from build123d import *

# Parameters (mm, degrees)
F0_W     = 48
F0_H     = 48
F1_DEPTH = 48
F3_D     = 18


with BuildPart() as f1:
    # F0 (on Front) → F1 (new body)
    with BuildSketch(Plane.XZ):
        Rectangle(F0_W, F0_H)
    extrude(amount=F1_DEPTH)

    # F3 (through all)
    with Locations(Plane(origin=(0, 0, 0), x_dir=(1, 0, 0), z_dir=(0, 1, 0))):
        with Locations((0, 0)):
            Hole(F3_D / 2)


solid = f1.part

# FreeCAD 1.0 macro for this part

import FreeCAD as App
import Part
import Sketcher
from FreeCAD import Vector

doc = App.newDocument("Part")
params = doc.addObject("Spreadsheet::Sheet", "Params")
for row, (alias, value) in enumerate([
    ("sketch1_width", "48 mm"),
    ("pad1_length", "48 mm"),
    ("sketch2_diameter", "18 mm"),
    ("hole_diameter", "18 mm"),
], start=1):
    params.set(f"A{row}", alias)
    params.set(f"B{row}", "=" + value)
    params.setAlias(f"B{row}", alias)

body = doc.addObject("PartDesign::Body", "Body")

# Sketch on XZ plane
sketch1 = body.newObject("Sketcher::SketchObject", "Sketch")
sketch1.AttachmentSupport = (doc.getObject("XZ_Plane"), [""])
sketch1.MapMode = "FlatFace"
sketch1.addGeometry([
    Part.LineSegment(Vector(-24, 24, 0), Vector(-24, -24, 0)),
    Part.LineSegment(Vector(-24, -24, 0), Vector(24, -24, 0)),
    Part.LineSegment(Vector(24, -24, 0), Vector(24, 24, 0)),
    Part.LineSegment(Vector(24, 24, 0), Vector(-24, 24, 0)),
], False)
sketch1.addConstraint([
    Sketcher.Constraint("Coincident", 0, 2, 1, 1),
    Sketcher.Constraint("Coincident", 1, 2, 2, 1),
    Sketcher.Constraint("Coincident", 2, 2, 3, 1),
    Sketcher.Constraint("Coincident", 3, 2, 0, 1),
    Sketcher.Constraint("Vertical", 0),
    Sketcher.Constraint("Horizontal", 1),
    Sketcher.Constraint("Vertical", 2),
    Sketcher.Constraint("Horizontal", 3),
    Sketcher.Constraint("Symmetric", 0, 2, 2, 2, -1, 1),
    Sketcher.Constraint("Equal", 3, 0),
    Sketcher.Constraint("DistanceX", 1, 1, 1, 2, 48.0),
])
sketch1.setExpression("Constraints[10]", "Params.sketch1_width")
pad1 = body.newObject("PartDesign::Pad", "Pad")
pad1.Profile = sketch1
pad1.setExpression("Length", "Params.pad1_length")

# Sketch on XZ plane
sketch2 = body.newObject("Sketcher::SketchObject", "Sketch001")
sketch2.AttachmentSupport = (doc.getObject("XZ_Plane"), [""])
sketch2.MapMode = "FlatFace"
sketch2.addGeometry(Part.Circle(Vector(0, 0, 0), Vector(0, 0, 1), 9), False)
sketch2.addConstraint([
    Sketcher.Constraint("Coincident", 0, 3, -1, 1),
    Sketcher.Constraint("Diameter", 0, 18.0),
])
sketch2.setExpression("Constraints[1]", "Params.sketch2_diameter")
doc.recompute()
hole = body.newObject("PartDesign::Hole", "Hole")
hole.Profile = sketch2
hole.ThreadType = "None"
hole.setExpression("Diameter", "Params.hole_diameter")
hole.DepthType = "ThroughAll"
hole.Reversed = True

doc.recompute()
